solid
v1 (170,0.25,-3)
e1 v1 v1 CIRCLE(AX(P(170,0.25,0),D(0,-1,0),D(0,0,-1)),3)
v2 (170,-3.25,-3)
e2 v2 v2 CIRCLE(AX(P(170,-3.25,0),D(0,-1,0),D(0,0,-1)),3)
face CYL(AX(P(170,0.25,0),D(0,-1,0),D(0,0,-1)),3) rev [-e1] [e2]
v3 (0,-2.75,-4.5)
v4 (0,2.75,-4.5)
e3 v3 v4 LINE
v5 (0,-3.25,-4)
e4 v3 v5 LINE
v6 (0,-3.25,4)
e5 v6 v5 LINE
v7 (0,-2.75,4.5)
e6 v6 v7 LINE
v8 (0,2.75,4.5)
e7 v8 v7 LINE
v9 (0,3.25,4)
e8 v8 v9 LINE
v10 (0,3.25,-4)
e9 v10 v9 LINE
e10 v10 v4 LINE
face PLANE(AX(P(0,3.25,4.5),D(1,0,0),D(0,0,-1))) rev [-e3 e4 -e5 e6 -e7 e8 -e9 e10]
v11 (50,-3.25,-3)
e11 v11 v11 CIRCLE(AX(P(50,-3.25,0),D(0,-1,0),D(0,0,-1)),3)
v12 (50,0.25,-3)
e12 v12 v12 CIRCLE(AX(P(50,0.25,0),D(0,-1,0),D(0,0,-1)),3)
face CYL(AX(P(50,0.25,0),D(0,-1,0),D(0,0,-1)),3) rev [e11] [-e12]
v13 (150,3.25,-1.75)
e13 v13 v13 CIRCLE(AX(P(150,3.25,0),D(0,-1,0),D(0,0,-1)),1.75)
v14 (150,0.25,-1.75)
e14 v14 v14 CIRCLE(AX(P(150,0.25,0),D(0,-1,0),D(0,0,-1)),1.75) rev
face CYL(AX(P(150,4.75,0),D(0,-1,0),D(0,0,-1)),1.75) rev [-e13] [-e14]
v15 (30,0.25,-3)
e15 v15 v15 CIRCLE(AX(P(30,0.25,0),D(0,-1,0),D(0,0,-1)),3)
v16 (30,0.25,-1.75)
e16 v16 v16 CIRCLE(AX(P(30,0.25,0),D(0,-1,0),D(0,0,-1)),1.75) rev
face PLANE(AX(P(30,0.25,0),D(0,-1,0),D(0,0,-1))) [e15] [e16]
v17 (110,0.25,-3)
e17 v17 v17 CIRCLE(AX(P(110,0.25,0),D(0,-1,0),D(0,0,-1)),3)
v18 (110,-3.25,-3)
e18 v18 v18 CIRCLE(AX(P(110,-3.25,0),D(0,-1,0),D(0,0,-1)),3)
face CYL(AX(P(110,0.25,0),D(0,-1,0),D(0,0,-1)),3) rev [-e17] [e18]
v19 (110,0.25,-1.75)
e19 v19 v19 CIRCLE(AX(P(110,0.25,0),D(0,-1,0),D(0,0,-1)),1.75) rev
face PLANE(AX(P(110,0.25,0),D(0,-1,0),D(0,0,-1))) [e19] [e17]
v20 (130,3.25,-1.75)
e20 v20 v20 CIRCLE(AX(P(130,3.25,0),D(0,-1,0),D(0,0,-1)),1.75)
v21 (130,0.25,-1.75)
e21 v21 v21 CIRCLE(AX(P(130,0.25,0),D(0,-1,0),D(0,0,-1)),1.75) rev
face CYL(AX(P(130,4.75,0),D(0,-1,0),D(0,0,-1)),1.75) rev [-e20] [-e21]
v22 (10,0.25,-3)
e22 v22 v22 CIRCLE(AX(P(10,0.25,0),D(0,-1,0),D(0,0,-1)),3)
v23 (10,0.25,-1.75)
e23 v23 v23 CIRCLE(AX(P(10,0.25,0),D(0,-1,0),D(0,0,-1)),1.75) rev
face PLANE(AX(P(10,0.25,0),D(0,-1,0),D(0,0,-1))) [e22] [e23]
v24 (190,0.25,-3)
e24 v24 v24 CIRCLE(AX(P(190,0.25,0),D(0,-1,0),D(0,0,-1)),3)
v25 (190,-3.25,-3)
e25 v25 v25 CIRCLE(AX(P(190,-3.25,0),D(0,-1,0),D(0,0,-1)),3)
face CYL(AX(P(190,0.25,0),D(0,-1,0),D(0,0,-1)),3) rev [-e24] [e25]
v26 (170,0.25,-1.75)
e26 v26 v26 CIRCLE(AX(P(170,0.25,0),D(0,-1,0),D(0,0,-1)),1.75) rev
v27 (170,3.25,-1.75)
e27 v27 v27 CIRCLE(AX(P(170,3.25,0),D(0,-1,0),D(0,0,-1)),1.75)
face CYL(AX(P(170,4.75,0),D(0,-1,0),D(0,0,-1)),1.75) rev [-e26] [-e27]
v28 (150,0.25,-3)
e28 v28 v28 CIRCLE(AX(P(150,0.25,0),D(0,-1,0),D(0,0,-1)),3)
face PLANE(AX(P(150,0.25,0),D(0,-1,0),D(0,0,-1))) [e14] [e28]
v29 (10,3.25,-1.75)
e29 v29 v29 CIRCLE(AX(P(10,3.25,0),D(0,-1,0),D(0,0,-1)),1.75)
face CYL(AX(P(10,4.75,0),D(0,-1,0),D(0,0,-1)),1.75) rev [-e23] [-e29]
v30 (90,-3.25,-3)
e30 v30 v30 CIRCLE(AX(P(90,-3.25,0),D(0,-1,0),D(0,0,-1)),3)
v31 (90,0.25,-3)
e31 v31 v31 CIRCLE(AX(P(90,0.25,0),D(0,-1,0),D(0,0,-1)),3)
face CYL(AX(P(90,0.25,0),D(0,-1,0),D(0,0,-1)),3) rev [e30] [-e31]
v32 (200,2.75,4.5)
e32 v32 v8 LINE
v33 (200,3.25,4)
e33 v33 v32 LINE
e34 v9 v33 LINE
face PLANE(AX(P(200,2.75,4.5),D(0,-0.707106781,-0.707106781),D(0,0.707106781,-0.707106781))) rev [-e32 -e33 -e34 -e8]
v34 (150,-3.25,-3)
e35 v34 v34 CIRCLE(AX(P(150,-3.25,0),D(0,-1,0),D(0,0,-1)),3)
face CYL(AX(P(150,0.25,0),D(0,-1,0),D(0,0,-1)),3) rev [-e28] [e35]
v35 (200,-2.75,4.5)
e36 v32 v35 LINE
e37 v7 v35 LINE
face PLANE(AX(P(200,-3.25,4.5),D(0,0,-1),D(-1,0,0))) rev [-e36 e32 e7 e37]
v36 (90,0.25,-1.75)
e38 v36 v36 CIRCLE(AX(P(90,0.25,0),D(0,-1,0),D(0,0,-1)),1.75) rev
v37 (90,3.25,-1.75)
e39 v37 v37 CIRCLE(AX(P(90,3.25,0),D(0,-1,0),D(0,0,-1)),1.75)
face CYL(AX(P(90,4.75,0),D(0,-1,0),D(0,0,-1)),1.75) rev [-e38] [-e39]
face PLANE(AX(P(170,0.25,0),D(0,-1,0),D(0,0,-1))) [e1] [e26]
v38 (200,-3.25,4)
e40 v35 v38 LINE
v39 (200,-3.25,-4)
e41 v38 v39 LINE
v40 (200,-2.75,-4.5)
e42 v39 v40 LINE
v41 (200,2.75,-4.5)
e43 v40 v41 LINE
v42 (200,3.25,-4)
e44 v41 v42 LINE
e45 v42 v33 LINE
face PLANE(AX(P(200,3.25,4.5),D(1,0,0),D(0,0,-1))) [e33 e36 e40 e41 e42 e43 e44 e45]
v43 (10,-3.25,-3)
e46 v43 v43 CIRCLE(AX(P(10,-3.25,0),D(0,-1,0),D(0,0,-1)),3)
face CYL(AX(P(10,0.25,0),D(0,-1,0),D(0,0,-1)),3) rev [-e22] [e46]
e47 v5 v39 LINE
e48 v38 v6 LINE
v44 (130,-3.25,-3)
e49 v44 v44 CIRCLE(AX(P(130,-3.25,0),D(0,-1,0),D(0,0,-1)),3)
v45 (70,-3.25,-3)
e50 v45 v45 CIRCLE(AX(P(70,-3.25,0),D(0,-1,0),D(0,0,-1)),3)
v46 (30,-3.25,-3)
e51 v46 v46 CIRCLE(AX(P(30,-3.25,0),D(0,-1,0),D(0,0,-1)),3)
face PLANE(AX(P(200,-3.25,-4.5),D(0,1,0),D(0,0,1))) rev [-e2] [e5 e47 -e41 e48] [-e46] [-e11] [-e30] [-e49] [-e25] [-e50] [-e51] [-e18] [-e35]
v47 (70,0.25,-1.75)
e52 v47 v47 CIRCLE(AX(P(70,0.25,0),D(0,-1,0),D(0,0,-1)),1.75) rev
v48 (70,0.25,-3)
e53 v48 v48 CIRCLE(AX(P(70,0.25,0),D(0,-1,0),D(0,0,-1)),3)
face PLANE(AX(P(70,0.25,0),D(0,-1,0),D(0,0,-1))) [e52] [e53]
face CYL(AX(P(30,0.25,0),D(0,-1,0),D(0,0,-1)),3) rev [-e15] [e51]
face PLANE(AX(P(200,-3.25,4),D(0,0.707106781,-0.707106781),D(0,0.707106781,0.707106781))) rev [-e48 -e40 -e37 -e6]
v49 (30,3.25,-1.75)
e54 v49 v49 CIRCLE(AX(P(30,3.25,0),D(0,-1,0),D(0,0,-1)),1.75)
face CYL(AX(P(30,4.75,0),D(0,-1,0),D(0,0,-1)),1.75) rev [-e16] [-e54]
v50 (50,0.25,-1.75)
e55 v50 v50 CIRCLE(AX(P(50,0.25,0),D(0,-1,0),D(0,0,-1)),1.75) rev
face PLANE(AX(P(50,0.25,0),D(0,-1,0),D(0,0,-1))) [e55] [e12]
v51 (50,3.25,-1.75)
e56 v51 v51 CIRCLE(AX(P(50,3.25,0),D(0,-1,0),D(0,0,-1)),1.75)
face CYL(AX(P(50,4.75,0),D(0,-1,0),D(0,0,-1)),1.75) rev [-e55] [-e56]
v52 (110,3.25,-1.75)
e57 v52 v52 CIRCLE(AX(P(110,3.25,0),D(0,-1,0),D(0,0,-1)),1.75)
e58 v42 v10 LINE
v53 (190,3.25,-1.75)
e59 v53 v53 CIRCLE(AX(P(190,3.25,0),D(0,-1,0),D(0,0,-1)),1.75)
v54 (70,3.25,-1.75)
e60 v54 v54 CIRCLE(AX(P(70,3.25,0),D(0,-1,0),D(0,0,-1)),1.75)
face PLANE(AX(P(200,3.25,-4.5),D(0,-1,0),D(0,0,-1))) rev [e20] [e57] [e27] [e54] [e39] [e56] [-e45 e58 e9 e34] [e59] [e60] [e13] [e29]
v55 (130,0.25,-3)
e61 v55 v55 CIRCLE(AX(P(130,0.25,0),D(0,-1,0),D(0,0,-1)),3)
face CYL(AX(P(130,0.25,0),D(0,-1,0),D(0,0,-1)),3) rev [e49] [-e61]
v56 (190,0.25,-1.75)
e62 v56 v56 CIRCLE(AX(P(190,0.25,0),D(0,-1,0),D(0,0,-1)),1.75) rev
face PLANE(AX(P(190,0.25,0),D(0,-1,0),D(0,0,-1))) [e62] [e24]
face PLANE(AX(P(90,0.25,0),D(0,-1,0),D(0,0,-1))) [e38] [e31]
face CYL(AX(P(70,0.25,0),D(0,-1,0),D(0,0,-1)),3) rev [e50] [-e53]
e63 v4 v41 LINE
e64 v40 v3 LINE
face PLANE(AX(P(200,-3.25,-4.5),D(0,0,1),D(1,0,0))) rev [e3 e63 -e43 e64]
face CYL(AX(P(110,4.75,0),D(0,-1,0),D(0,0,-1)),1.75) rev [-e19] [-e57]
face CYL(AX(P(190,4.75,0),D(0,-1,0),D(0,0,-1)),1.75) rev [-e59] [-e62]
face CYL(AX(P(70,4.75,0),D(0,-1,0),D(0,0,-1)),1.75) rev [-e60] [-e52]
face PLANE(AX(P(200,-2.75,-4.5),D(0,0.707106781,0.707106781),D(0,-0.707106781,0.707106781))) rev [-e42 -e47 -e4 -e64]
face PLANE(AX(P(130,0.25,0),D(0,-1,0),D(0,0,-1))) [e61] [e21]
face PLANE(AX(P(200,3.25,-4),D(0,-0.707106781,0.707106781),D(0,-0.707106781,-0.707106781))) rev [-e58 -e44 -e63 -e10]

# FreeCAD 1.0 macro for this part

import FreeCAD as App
import Part
import Sketcher

V = App.Vector


def edges_at(feature, points):
    """Names of the edges that pass closest to the given points."""
    edges = feature.Shape.Edges
    near = lambda p: min(range(len(edges)), key=lambda i: edges[i].distToShape(Part.Vertex(*p))[0])
    return sorted({f"Edge{near(p) + 1}" for p in points})

doc = App.newDocument("Part")
body = doc.addObject("PartDesign::Body", "Body")

sketch1 = body.newObject("Sketcher::SketchObject", "Sketch")
sketch1.AttachmentSupport = (doc.getObject("YZ_Plane"), [""])
sketch1.MapMode = "FlatFace"
sketch1.addGeometry(Part.LineSegment(V(3, 4, 0), V(-3, 4, 0)), False)
sketch1.addGeometry(Part.LineSegment(V(-3, 4, 0), V(-3, -4, 0)), False)
sketch1.addGeometry(Part.LineSegment(V(-3, -4, 0), V(3, -4, 0)), False)
sketch1.addGeometry(Part.LineSegment(V(3, -4, 0), V(3, 4, 0)), False)
sketch1.addConstraint(Sketcher.Constraint("Coincident", 0, 2, 1, 1))
sketch1.addConstraint(Sketcher.Constraint("Coincident", 1, 2, 2, 1))
sketch1.addConstraint(Sketcher.Constraint("Coincident", 2, 2, 3, 1))
sketch1.addConstraint(Sketcher.Constraint("Coincident", 3, 2, 0, 1))
sketch1.addConstraint(Sketcher.Constraint("Horizontal", 0))
sketch1.addConstraint(Sketcher.Constraint("Vertical", 1))
sketch1.addConstraint(Sketcher.Constraint("Horizontal", 2))
sketch1.addConstraint(Sketcher.Constraint("Vertical", 3))
sketch1.addConstraint(Sketcher.Constraint("Symmetric", 0, 2, 2, 2, -1, 1))
sketch1.addConstraint(Sketcher.Constraint("DistanceY", 1, 2, 1, 1, 9.0))
sketch1.addConstraint(Sketcher.Constraint("DistanceX", 0, 2, 0, 1, 6.5))
pad1 = body.newObject("PartDesign::Pad", "Pad")
pad1.Profile = sketch1
pad1.Length = 200

sketch2 = body.newObject("Sketcher::SketchObject", "Sketch001")
sketch2.AttachmentSupport = (doc.getObject("XZ_Plane"), [""])
sketch2.MapMode = "FlatFace"
sketch2.AttachmentOffset = App.Placement(V(0, 0, 3.25), App.Rotation())
sketch2.addGeometry(Part.Circle(V(10, 0, 0), V(0, 0, 1), 1.8), False)
sketch2.addGeometry(Part.Circle(V(170, 0, 0), V(0, 0, 1), 1.8), False)
sketch2.addGeometry(Part.Circle(V(190, 0, 0), V(0, 0, 1), 1.8), False)
sketch2.addGeometry(Part.Circle(V(210, 0, 0), V(0, 0, 1), 1.8), False)
sketch2.addGeometry(Part.Circle(V(230, 0, 0), V(0, 0, 1), 1.8), False)
sketch2.addGeometry(Part.Circle(V(250, 0, 0), V(0, 0, 1), 1.8), False)
sketch2.addGeometry(Part.Circle(V(270, 0, 0), V(0, 0, 1), 1.8), False)
sketch2.addGeometry(Part.Circle(V(290, 0, 0), V(0, 0, 1), 1.8), False)
sketch2.addGeometry(Part.Circle(V(30, 0, 0), V(0, 0, 1), 1.8), False)
sketch2.addGeometry(Part.Circle(V(50, 0, 0), V(0, 0, 1), 1.8), False)
sketch2.addGeometry(Part.Circle(V(70, 0, 0), V(0, 0, 1), 1.8), False)
sketch2.addGeometry(Part.Circle(V(90, 0, 0), V(0, 0, 1), 1.8), False)
sketch2.addGeometry(Part.Circle(V(110, 0, 0), V(0, 0, 1), 1.8), False)
sketch2.addGeometry(Part.Circle(V(130, 0, 0), V(0, 0, 1), 1.8), False)
sketch2.addGeometry(Part.Circle(V(150, 0, 0), V(0, 0, 1), 1.8), False)
sketch2.addConstraint(Sketcher.Constraint("Equal", 0, 1))
sketch2.addConstraint(Sketcher.Constraint("Equal", 1, 2))
sketch2.addConstraint(Sketcher.Constraint("Equal", 2, 3))
sketch2.addConstraint(Sketcher.Constraint("Equal", 3, 4))
sketch2.addConstraint(Sketcher.Constraint("Equal", 4, 5))
sketch2.addConstraint(Sketcher.Constraint("Equal", 5, 6))
sketch2.addConstraint(Sketcher.Constraint("Equal", 6, 7))
sketch2.addConstraint(Sketcher.Constraint("Equal", 7, 8))
sketch2.addConstraint(Sketcher.Constraint("Equal", 8, 9))
sketch2.addConstraint(Sketcher.Constraint("Equal", 9, 10))
sketch2.addConstraint(Sketcher.Constraint("Equal", 10, 11))
sketch2.addConstraint(Sketcher.Constraint("Equal", 11, 12))
sketch2.addConstraint(Sketcher.Constraint("Equal", 12, 13))
sketch2.addConstraint(Sketcher.Constraint("Equal", 13, 14))
sketch2.addConstraint(Sketcher.Constraint("PointOnObject", 0, 3, -1))
sketch2.addConstraint(Sketcher.Constraint("PointOnObject", 1, 3, -1))
sketch2.addConstraint(Sketcher.Constraint("PointOnObject", 2, 3, -1))
sketch2.addConstraint(Sketcher.Constraint("PointOnObject", 3, 3, -1))
sketch2.addConstraint(Sketcher.Constraint("PointOnObject", 4, 3, -1))
sketch2.addConstraint(Sketcher.Constraint("PointOnObject", 5, 3, -1))
sketch2.addConstraint(Sketcher.Constraint("PointOnObject", 6, 3, -1))
sketch2.addConstraint(Sketcher.Constraint("PointOnObject", 7, 3, -1))
sketch2.addConstraint(Sketcher.Constraint("PointOnObject", 8, 3, -1))
sketch2.addConstraint(Sketcher.Constraint("PointOnObject", 9, 3, -1))
sketch2.addConstraint(Sketcher.Constraint("PointOnObject", 10, 3, -1))
sketch2.addConstraint(Sketcher.Constraint("PointOnObject", 11, 3, -1))
sketch2.addConstraint(Sketcher.Constraint("PointOnObject", 12, 3, -1))
sketch2.addConstraint(Sketcher.Constraint("PointOnObject", 13, 3, -1))
sketch2.addConstraint(Sketcher.Constraint("PointOnObject", 14, 3, -1))
sketch2.addConstraint(Sketcher.Constraint("Diameter", 0, 3.5))
sketch2.addConstraint(Sketcher.Constraint("DistanceX", -1, 1, 0, 3, 10.0))
sketch2.addConstraint(Sketcher.Constraint("DistanceX", -1, 1, 1, 3, 170.0))
sketch2.addConstraint(Sketcher.Constraint("DistanceX", -1, 1, 2, 3, 190.0))
sketch2.addConstraint(Sketcher.Constraint("DistanceX", -1, 1, 3, 3, 210.0))
sketch2.addConstraint(Sketcher.Constraint("DistanceX", -1, 1, 4, 3, 230.0))
sketch2.addConstraint(Sketcher.Constraint("DistanceX", -1, 1, 5, 3, 250.0))
sketch2.addConstraint(Sketcher.Constraint("DistanceX", -1, 1, 6, 3, 270.0))
sketch2.addConstraint(Sketcher.Constraint("DistanceX", -1, 1, 7, 3, 290.0))
sketch2.addConstraint(Sketcher.Constraint("DistanceX", -1, 1, 8, 3, 30.0))
sketch2.addConstraint(Sketcher.Constraint("DistanceX", -1, 1, 9, 3, 50.0))
sketch2.addConstraint(Sketcher.Constraint("DistanceX", -1, 1, 10, 3, 70.0))
sketch2.addConstraint(Sketcher.Constraint("DistanceX", -1, 1, 11, 3, 90.0))
sketch2.addConstraint(Sketcher.Constraint("DistanceX", -1, 1, 12, 3, 110.0))
sketch2.addConstraint(Sketcher.Constraint("DistanceX", -1, 1, 13, 3, 130.0))
sketch2.addConstraint(Sketcher.Constraint("DistanceX", -1, 1, 14, 3, 150.0))
pocket1 = body.newObject("PartDesign::Pocket", "Pocket")
pocket1.Profile = sketch2
pocket1.Length = 8

sketch3 = body.newObject("Sketcher::SketchObject", "Sketch002")
sketch3.AttachmentSupport = (doc.getObject("XZ_Plane"), [""])
sketch3.MapMode = "FlatFace"
sketch3.AttachmentOffset = App.Placement(V(0, 0, 3.25), App.Rotation())
sketch3.addGeometry(Part.Circle(V(10, 0, 0), V(0, 0, 1), 3), False)
sketch3.addGeometry(Part.Circle(V(170, 0, 0), V(0, 0, 1), 3), False)
sketch3.addGeometry(Part.Circle(V(190, 0, 0), V(0, 0, 1), 3), False)
sketch3.addGeometry(Part.Circle(V(210, 0, 0), V(0, 0, 1), 3), False)
sketch3.addGeometry(Part.Circle(V(230, 0, 0), V(0, 0, 1), 3), False)
sketch3.addGeometry(Part.Circle(V(250, 0, 0), V(0, 0, 1), 3), False)
sketch3.addGeometry(Part.Circle(V(270, 0, 0), V(0, 0, 1), 3), False)
sketch3.addGeometry(Part.Circle(V(290, 0, 0), V(0, 0, 1), 3), False)
sketch3.addGeometry(Part.Circle(V(30, 0, 0), V(0, 0, 1), 3), False)
sketch3.addGeometry(Part.Circle(V(50, 0, 0), V(0, 0, 1), 3), False)
sketch3.addGeometry(Part.Circle(V(70, 0, 0), V(0, 0, 1), 3), False)
sketch3.addGeometry(Part.Circle(V(90, 0, 0), V(0, 0, 1), 3), False)
sketch3.addGeometry(Part.Circle(V(110, 0, 0), V(0, 0, 1), 3), False)
sketch3.addGeometry(Part.Circle(V(130, 0, 0), V(0, 0, 1), 3), False)
sketch3.addGeometry(Part.Circle(V(150, 0, 0), V(0, 0, 1), 3), False)
sketch3.addConstraint(Sketcher.Constraint("Equal", 0, 1))
sketch3.addConstraint(Sketcher.Constraint("Equal", 1, 2))
sketch3.addConstraint(Sketcher.Constraint("Equal", 2, 3))
sketch3.addConstraint(Sketcher.Constraint("Equal", 3, 4))
sketch3.addConstraint(Sketcher.Constraint("Equal", 4, 5))
sketch3.addConstraint(Sketcher.Constraint("Equal", 5, 6))
sketch3.addConstraint(Sketcher.Constraint("Equal", 6, 7))
sketch3.addConstraint(Sketcher.Constraint("Equal", 7, 8))
sketch3.addConstraint(Sketcher.Constraint("Equal", 8, 9))
sketch3.addConstraint(Sketcher.Constraint("Equal", 9, 10))
sketch3.addConstraint(Sketcher.Constraint("Equal", 10, 11))
sketch3.addConstraint(Sketcher.Constraint("Equal", 11, 12))
sketch3.addConstraint(Sketcher.Constraint("Equal", 12, 13))
sketch3.addConstraint(Sketcher.Constraint("Equal", 13, 14))
sketch3.addConstraint(Sketcher.Constraint("PointOnObject", 0, 3, -1))
sketch3.addConstraint(Sketcher.Constraint("PointOnObject", 1, 3, -1))
sketch3.addConstraint(Sketcher.Constraint("PointOnObject", 2, 3, -1))
sketch3.addConstraint(Sketcher.Constraint("PointOnObject", 3, 3, -1))
sketch3.addConstraint(Sketcher.Constraint("PointOnObject", 4, 3, -1))
sketch3.addConstraint(Sketcher.Constraint("PointOnObject", 5, 3, -1))
sketch3.addConstraint(Sketcher.Constraint("PointOnObject", 6, 3, -1))
sketch3.addConstraint(Sketcher.Constraint("PointOnObject", 7, 3, -1))
sketch3.addConstraint(Sketcher.Constraint("PointOnObject", 8, 3, -1))
sketch3.addConstraint(Sketcher.Constraint("PointOnObject", 9, 3, -1))
sketch3.addConstraint(Sketcher.Constraint("PointOnObject", 10, 3, -1))
sketch3.addConstraint(Sketcher.Constraint("PointOnObject", 11, 3, -1))
sketch3.addConstraint(Sketcher.Constraint("PointOnObject", 12, 3, -1))
sketch3.addConstraint(Sketcher.Constraint("PointOnObject", 13, 3, -1))
sketch3.addConstraint(Sketcher.Constraint("PointOnObject", 14, 3, -1))
sketch3.addConstraint(Sketcher.Constraint("Diameter", 0, 6.0))
sketch3.addConstraint(Sketcher.Constraint("DistanceX", -1, 1, 0, 3, 10.0))
sketch3.addConstraint(Sketcher.Constraint("DistanceX", -1, 1, 1, 3, 170.0))
sketch3.addConstraint(Sketcher.Constraint("DistanceX", -1, 1, 2, 3, 190.0))
sketch3.addConstraint(Sketcher.Constraint("DistanceX", -1, 1, 3, 3, 210.0))
sketch3.addConstraint(Sketcher.Constraint("DistanceX", -1, 1, 4, 3, 230.0))
sketch3.addConstraint(Sketcher.Constraint("DistanceX", -1, 1, 5, 3, 250.0))
sketch3.addConstraint(Sketcher.Constraint("DistanceX", -1, 1, 6, 3, 270.0))
sketch3.addConstraint(Sketcher.Constraint("DistanceX", -1, 1, 7, 3, 290.0))
sketch3.addConstraint(Sketcher.Constraint("DistanceX", -1, 1, 8, 3, 30.0))
sketch3.addConstraint(Sketcher.Constraint("DistanceX", -1, 1, 9, 3, 50.0))
sketch3.addConstraint(Sketcher.Constraint("DistanceX", -1, 1, 10, 3, 70.0))
sketch3.addConstraint(Sketcher.Constraint("DistanceX", -1, 1, 11, 3, 90.0))
sketch3.addConstraint(Sketcher.Constraint("DistanceX", -1, 1, 12, 3, 110.0))
sketch3.addConstraint(Sketcher.Constraint("DistanceX", -1, 1, 13, 3, 130.0))
sketch3.addConstraint(Sketcher.Constraint("DistanceX", -1, 1, 14, 3, 150.0))
pocket2 = body.newObject("PartDesign::Pocket", "Pocket001")
pocket2.Profile = sketch3
pocket2.Length = 3.5
doc.recompute()

chamfer = body.newObject("PartDesign::Chamfer", "Chamfer")
chamfer.Base = (pocket2, edges_at(pocket2, [
    (100, 3.25, 4.5),
    (100, 3.25, -4.5),
    (100, -3.25, -4.5),
    (100, -3.25, 4.5),
]))
chamfer.Size = 0.5

doc.recompute()
